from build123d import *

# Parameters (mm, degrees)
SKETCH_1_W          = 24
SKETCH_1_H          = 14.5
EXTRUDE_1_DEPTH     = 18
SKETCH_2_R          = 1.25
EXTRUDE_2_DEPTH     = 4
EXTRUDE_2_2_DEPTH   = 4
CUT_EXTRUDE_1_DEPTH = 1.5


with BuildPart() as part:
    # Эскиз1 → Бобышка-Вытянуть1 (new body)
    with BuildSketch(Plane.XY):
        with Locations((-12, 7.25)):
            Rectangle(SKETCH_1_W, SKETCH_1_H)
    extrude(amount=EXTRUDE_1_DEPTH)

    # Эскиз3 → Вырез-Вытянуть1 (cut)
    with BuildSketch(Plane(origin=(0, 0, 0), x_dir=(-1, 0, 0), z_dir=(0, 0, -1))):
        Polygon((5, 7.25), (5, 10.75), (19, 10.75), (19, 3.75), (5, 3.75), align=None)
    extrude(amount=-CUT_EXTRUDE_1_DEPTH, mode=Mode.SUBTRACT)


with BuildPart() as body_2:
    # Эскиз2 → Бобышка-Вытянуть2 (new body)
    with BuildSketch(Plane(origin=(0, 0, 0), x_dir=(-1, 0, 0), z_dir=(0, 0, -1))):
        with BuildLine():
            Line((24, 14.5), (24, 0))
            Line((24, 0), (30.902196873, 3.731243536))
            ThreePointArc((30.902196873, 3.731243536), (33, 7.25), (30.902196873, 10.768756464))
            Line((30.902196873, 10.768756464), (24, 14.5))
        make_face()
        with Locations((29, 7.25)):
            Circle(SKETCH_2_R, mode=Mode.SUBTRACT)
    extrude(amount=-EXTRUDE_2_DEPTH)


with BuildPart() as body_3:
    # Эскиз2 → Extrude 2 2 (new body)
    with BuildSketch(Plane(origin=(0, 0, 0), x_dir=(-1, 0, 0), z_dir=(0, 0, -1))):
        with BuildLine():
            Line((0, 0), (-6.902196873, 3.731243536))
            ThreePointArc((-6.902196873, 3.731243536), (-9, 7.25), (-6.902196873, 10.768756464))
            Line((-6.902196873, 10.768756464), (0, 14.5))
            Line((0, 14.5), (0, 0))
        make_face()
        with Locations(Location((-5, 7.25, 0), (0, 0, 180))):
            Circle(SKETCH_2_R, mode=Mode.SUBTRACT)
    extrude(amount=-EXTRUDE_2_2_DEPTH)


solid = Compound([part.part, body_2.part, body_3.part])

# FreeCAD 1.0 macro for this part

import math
import FreeCAD as App
import Part
import Sketcher
from FreeCAD import Vector
Q = App.Units.Quantity


def add_polygon(sketch, points):
    """Adds a closed chain of lines whose ends are joined by coincident constraints."""
    first, n = sketch.GeometryCount, len(points)
    for a, b in zip(points, points[1:] + points[:1]):
        sketch.addGeometry(Part.LineSegment(App.Vector(*a, 0), App.Vector(*b, 0)), False)
    for i in range(n):
        sketch.addConstraint(Sketcher.Constraint("Coincident", first + i, 2, first + (i + 1) % n, 1))

doc = App.newDocument("Part")
body = doc.addObject("PartDesign::Body", "Body")

# Sketch on XY plane
sketch1 = doc.addObject("Sketcher::SketchObject", "Sketch")
body.addObject(sketch1)
sketch1.AttachmentSupport = (doc.XY_Plane, [""])
sketch1.MapMode = "FlatFace"
add_polygon(sketch1, [(-24, 14), (-24, 0), (0, 0), (0, 14)])  # lines 0-3
sketch1.addConstraint([
    Sketcher.Constraint("Vertical", 0),
    Sketcher.Constraint("Horizontal", 1),
    Sketcher.Constraint("Vertical", 2),
    Sketcher.Constraint("Horizontal", 3),
    Sketcher.Constraint("Coincident", 1, 2, -1, 1),
    Sketcher.Constraint("DistanceX", 1, 1, 1, 2, Q("24 mm")),
    Sketcher.Constraint("DistanceY", 0, 2, 0, 1, Q("14.5 mm")),
])
pad1 = doc.addObject("PartDesign::Pad", "Pad")
body.addObject(pad1)
pad1.Profile = sketch1
pad1.Length = 18

# Sketch on XY plane
sketch2 = doc.addObject("Sketcher::SketchObject", "Sketch001")
body.addObject(sketch2)
sketch2.AttachmentSupport = (doc.XY_Plane, [""])
sketch2.MapMode = "FlatFace"
add_polygon(sketch2, [(-5, 11), (-5, 4), (-19, 4), (-19, 11)])  # lines 0-3
sketch2.addConstraint([
    Sketcher.Constraint("Vertical", 0),
    Sketcher.Constraint("Horizontal", 1),
    Sketcher.Constraint("Vertical", 2),
    Sketcher.Constraint("Horizontal", 3),
    Sketcher.Constraint("DistanceX", 1, 2, 1, 1, Q("14 mm")),
    Sketcher.Constraint("DistanceY", 0, 2, 0, 1, Q("7 mm")),
    Sketcher.Constraint("DistanceX", 0, 2, -1, 1, Q("5 mm")),
    Sketcher.Constraint("DistanceY", -1, 1, 0, 2, Q("3.75 mm")),
])
pocket1 = doc.addObject("PartDesign::Pocket", "Pocket")
body.addObject(pocket1)
pocket1.Profile = sketch2
pocket1.Length = 1.5
pocket1.Reversed = True
body2 = doc.addObject("PartDesign::Body", "Body001")

# Sketch on XY plane
sketch3 = doc.addObject("Sketcher::SketchObject", "Sketch002")
body2.addObject(sketch3)
sketch3.AttachmentSupport = (doc.getObject("XY_Plane001"), [""])
sketch3.MapMode = "FlatFace"
sketch3.addGeometry([
    Part.LineSegment(Vector(-24, 14.5, 0), Vector(-24, 0, 0)),  # 0
    Part.LineSegment(Vector(-24, 0, 0), Vector(-30.9, 3.7, 0)),  # 1
    Part.ArcOfCircle(Part.Circle(Vector(-29, 7.2, 0), Vector(0, 0, 1), 4), math.radians(118), math.radians(242)),  # 2
    Part.LineSegment(Vector(-30.9, 10.8, 0), Vector(-24, 14.5, 0)),  # 3
    Part.Circle(Vector(-29, 7.2, 0), Vector(0, 0, 1), 1.2),  # 4
], False)
sketch3.addConstraint([
    Sketcher.Constraint("Coincident", 0, 2, 1, 1),
    Sketcher.Constraint("Tangent", 1, 2, 2, 2),
    Sketcher.Constraint("Tangent", 2, 1, 3, 1),
    Sketcher.Constraint("Coincident", 3, 2, 0, 1),
    Sketcher.Constraint("Vertical", 0),
    Sketcher.Constraint("Coincident", 4, 3, 2, 3),
    Sketcher.Constraint("PointOnObject", 0, 2, -1),
    Sketcher.Constraint("Vertical", 1, 2, 2, 1),
    Sketcher.Constraint("Radius", 2, Q("4 mm")),
    Sketcher.Constraint("Diameter", 4, Q("2.5 mm")),
    Sketcher.Constraint("DistanceY", 0, 2, 0, 1, Q("14.5 mm")),
    Sketcher.Constraint("DistanceX", 2, 3, -1, 1, Q("29 mm")),
    Sketcher.Constraint("DistanceX", 0, 2, -1, 1, Q("24 mm")),
])
pad2 = doc.addObject("PartDesign::Pad", "Pad001")
body2.addObject(pad2)
pad2.Profile = sketch3
pad2.Length = 4
body3 = doc.addObject("PartDesign::Body", "Body002")

# Sketch on XY plane
sketch4 = doc.addObject("Sketcher::SketchObject", "Sketch003")
body3.addObject(sketch4)
sketch4.AttachmentSupport = (doc.getObject("XY_Plane002"), [""])
sketch4.MapMode = "FlatFace"
sketch4.addGeometry([
    Part.LineSegment(Vector(6.9, 3.7, 0), Vector(0, 0, 0)),  # 0
    Part.LineSegment(Vector(0, 0, 0), Vector(0, 14.5, 0)),  # 1
    Part.LineSegment(Vector(0, 14.5, 0), Vector(6.9, 10.8, 0)),  # 2
    Part.ArcOfCircle(Part.Circle(Vector(5, 7.2, 0), Vector(0, 0, 1), 4), math.radians(-62), math.radians(62)),  # 3
    Part.Circle(Vector(5, 7.2, 0), Vector(0, 0, 1), 1.2),  # 4
], False)
sketch4.addConstraint([
    Sketcher.Constraint("Coincident", 0, 2, 1, 1),
    Sketcher.Constraint("Coincident", 1, 2, 2, 1),
    Sketcher.Constraint("Tangent", 2, 2, 3, 2),
    Sketcher.Constraint("Tangent", 3, 1, 0, 1),
    Sketcher.Constraint("Vertical", 1),
    Sketcher.Constraint("Coincident", 0, 2, -1, 1),
    Sketcher.Constraint("Coincident", 4, 3, 3, 3),
    Sketcher.Constraint("Vertical", 2, 2, 3, 1),
    Sketcher.Constraint("Radius", 3, Q("4 mm")),
    Sketcher.Constraint("Diameter", 4, Q("2.5 mm")),
    Sketcher.Constraint("DistanceY", 1, 1, 1, 2, Q("14.5 mm")),
    Sketcher.Constraint("DistanceX", -1, 1, 3, 3, Q("5 mm")),
])
pad3 = doc.addObject("PartDesign::Pad", "Pad002")
body3.addObject(pad3)
pad3.Profile = sketch4
pad3.Length = 4

doc.recompute()
